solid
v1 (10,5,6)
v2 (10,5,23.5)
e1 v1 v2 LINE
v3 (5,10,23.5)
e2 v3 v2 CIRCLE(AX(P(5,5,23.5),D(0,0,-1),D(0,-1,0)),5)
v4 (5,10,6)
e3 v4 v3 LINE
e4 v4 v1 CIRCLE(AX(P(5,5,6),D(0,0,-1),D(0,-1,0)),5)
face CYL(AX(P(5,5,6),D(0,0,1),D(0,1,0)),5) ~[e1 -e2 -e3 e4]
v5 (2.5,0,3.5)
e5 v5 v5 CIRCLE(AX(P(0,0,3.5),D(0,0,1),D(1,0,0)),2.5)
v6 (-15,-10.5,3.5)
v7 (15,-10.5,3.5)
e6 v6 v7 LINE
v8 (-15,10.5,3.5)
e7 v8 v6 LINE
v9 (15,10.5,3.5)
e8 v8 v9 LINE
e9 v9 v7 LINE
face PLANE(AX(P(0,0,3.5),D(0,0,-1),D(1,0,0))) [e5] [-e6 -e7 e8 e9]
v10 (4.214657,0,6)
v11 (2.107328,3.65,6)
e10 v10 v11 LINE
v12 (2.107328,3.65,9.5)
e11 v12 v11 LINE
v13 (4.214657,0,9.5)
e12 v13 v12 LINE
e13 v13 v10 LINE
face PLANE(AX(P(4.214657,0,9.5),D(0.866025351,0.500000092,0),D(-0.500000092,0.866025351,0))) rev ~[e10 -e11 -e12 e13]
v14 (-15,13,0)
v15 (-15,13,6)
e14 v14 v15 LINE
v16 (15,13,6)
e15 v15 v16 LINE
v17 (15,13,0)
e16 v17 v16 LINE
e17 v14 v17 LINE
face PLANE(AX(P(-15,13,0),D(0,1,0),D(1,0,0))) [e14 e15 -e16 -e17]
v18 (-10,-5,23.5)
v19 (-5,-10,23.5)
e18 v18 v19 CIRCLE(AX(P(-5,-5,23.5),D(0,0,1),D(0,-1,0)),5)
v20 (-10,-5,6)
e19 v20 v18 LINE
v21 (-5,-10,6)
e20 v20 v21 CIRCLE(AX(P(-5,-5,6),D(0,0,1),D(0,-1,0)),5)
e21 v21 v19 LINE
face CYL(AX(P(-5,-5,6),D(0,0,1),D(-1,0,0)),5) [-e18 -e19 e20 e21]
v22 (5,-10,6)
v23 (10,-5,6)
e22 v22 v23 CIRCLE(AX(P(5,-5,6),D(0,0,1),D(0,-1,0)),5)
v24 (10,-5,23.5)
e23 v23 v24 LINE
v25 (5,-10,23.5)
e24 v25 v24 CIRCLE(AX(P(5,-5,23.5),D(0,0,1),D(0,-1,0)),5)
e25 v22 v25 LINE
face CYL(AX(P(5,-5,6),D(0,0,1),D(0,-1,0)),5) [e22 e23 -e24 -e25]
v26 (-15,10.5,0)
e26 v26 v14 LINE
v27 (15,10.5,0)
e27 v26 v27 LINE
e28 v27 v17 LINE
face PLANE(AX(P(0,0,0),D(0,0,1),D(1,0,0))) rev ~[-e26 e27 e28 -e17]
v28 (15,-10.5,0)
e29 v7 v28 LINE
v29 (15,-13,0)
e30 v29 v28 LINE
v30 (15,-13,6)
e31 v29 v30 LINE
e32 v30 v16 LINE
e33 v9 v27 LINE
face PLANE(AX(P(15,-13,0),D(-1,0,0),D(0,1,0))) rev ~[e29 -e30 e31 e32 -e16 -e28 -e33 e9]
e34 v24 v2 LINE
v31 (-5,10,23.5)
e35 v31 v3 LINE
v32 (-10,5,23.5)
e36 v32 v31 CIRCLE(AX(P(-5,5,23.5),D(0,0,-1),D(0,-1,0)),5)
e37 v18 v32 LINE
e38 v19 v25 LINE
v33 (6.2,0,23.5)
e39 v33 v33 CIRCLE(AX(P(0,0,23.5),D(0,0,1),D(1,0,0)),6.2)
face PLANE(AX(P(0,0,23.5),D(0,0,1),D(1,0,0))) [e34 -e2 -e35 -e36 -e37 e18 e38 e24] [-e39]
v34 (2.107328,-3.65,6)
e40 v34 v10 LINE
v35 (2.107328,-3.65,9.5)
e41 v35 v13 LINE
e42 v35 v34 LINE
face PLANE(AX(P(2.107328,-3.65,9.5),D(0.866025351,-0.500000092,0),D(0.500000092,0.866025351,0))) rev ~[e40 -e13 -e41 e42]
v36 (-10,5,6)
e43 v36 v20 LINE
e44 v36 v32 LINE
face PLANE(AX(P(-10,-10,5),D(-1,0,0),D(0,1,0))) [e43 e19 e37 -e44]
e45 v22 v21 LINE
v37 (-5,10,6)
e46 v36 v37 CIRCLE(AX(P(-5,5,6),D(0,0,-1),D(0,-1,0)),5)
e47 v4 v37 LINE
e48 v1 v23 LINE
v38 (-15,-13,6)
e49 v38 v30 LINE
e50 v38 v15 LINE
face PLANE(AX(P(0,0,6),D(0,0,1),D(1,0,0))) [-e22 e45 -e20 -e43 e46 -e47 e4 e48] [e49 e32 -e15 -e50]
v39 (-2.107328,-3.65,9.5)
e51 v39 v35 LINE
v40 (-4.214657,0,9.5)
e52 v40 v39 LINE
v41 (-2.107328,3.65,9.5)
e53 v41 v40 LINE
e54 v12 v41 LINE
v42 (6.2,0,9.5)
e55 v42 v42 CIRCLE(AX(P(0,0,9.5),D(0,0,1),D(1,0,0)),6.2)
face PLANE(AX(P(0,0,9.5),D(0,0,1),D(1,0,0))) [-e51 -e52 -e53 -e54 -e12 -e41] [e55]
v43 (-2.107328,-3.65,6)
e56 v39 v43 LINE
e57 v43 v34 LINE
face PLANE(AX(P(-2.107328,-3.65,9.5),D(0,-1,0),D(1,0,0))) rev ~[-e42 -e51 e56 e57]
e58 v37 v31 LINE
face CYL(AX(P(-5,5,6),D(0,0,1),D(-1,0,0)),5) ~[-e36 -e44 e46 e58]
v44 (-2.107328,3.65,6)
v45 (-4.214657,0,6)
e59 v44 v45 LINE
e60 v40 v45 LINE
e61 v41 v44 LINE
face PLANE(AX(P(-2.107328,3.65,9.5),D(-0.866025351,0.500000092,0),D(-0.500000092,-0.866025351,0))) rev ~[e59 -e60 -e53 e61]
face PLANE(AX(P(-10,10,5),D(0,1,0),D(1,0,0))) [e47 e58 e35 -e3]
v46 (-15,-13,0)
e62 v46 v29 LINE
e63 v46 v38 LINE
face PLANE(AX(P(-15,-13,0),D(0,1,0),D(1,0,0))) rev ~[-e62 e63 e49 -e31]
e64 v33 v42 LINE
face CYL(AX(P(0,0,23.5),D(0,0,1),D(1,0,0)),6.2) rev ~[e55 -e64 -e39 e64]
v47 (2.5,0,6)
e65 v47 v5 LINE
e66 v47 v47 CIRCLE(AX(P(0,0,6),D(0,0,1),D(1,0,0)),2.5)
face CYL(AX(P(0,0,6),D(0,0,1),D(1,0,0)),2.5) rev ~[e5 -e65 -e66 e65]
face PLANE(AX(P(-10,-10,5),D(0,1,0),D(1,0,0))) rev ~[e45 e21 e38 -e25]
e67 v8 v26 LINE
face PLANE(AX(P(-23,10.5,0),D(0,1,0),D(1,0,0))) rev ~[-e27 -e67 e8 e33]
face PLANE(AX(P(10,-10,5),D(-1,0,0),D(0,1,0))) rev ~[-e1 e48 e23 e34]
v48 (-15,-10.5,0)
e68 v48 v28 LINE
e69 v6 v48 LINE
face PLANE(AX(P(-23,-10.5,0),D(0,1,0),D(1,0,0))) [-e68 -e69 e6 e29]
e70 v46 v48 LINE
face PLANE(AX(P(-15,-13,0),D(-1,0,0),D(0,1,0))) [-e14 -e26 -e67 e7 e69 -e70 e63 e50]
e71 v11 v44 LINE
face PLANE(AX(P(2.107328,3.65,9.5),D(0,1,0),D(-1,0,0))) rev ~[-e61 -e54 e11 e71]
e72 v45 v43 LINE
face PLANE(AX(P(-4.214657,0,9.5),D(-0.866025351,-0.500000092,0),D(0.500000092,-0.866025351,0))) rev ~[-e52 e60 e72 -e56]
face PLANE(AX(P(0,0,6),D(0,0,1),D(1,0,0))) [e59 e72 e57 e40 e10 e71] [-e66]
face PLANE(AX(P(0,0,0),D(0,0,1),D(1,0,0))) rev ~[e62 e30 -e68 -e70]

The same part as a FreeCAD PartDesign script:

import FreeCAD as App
import Part
import Sketcher
Q = App.Units.Quantity


def edges_at(feature, points):
    """Names of the edges that pass closest to the given points."""
    edges = feature.Shape.Edges
    near = lambda p: min(range(len(edges)), key=lambda i: edges[i].distToShape(Part.Vertex(*p))[0])
    return sorted({f"Edge{near(p) + 1}" for p in points})


def add_polygon(sketch, points):
    """Adds a closed chain of lines whose ends are joined by coincident constraints."""
    first, n = sketch.GeometryCount, len(points)
    for a, b in zip(points, points[1:] + points[:1]):
        sketch.addGeometry(Part.LineSegment(App.Vector(*a, 0), App.Vector(*b, 0)), False)
    for i in range(n):
        sketch.addConstraint(Sketcher.Constraint("Coincident", first + i, 2, first + (i + 1) % n, 1))

doc = App.newDocument("Part")
body = doc.addObject("PartDesign::Body", "Body")

# Sketch on XY plane
sketch1 = body.newObject("Sketcher::SketchObject", "Sketch")
sketch1.AttachmentSupport = (doc.getObject("XY_Plane"), [""])
sketch1.MapMode = "FlatFace"
add_polygon(sketch1, [(-15, 13), (-15, -13), (15, -13), (15, 13)])  # lines 0-3
sketch1.addConstraint([
    Sketcher.Constraint("Vertical", 0),
    Sketcher.Constraint("Horizontal", 1),
    Sketcher.Constraint("Vertical", 2),
    Sketcher.Constraint("Horizontal", 3),
    Sketcher.Constraint("Symmetric", 0, 2, 2, 2, -1, 1),
    Sketcher.Constraint("DistanceX", 1, 1, 1, 2, 30.0),
    Sketcher.Constraint("DistanceY", 0, 2, 0, 1, 26.0),
])
pad1 = body.newObject("PartDesign::Pad", "Pad")
pad1.Profile = sketch1
pad1.Length = 6

# Sketch on XY plane
sketch2 = body.newObject("Sketcher::SketchObject", "Sketch001")
sketch2.AttachmentSupport = (doc.getObject("XY_Plane"), [""])
sketch2.MapMode = "FlatFace"
add_polygon(sketch2, [(-23, -10), (-23, 10), (23, 10), (23, -10)])  # lines 0-3
sketch2.addConstraint([
    Sketcher.Constraint("Vertical", 0),
    Sketcher.Constraint("Horizontal", 1),
    Sketcher.Constraint("Vertical", 2),
    Sketcher.Constraint("Horizontal", 3),
    Sketcher.Constraint("Symmetric", 0, 2, 2, 2, -1, 1),
    Sketcher.Constraint("DistanceX", 1, 1, 1, 2, 46.0),
    Sketcher.Constraint("DistanceY", 0, 1, 0, 2, 21.0),
])
pocket1 = body.newObject("PartDesign::Pocket", "Pocket")
pocket1.Profile = sketch2
pocket1.Length = 3.5
pocket1.Reversed = True

# Sketch on XY plane
sketch3 = body.newObject("Sketcher::SketchObject", "Sketch002")
sketch3.AttachmentSupport = (doc.getObject("XY_Plane"), [""])
sketch3.MapMode = "FlatFace"
sketch3.AttachmentOffset = App.Placement(App.Vector(0, 0, 5), App.Rotation())
add_polygon(sketch3, [(-10, 10), (-10, -10), (10, -10), (10, 10)])  # lines 0-3
sketch3.addConstraint([
    Sketcher.Constraint("Vertical", 0),
    Sketcher.Constraint("Horizontal", 1),
    Sketcher.Constraint("Vertical", 2),
    Sketcher.Constraint("Horizontal", 3),
    Sketcher.Constraint("Symmetric", 0, 2, 2, 2, -1, 1),
    Sketcher.Constraint("Equal", 3, 0),
    Sketcher.Constraint("DistanceX", 1, 1, 1, 2, 20.0),
])
pad2 = body.newObject("PartDesign::Pad", "Pad001")
pad2.Profile = sketch3
pad2.Length = 18.5

# Sketch on XY plane
sketch4 = body.newObject("Sketcher::SketchObject", "Sketch003")
sketch4.AttachmentSupport = (doc.getObject("XY_Plane"), [""])
sketch4.MapMode = "FlatFace"
sketch4.AttachmentOffset = App.Placement(App.Vector(0, 0, 23.5), App.Rotation())
sketch4.addGeometry(Part.Circle(App.Vector(0, 0, 0), App.Vector(0, 0, 1), 6), False)
sketch4.addConstraint([
    Sketcher.Constraint("Coincident", 0, 3, -1, 1),
    Sketcher.Constraint("Diameter", 0, 12.4),
])
pocket2 = body.newObject("PartDesign::Pocket", "Pocket001")
pocket2.Profile = sketch4
pocket2.Length = 14

# Sketch on XY plane
sketch5 = body.newObject("Sketcher::SketchObject", "Sketch004")
sketch5.AttachmentSupport = (doc.getObject("XY_Plane"), [""])
sketch5.MapMode = "FlatFace"
sketch5.AttachmentOffset = App.Placement(App.Vector(0, 0, 9.5), App.Rotation())
add_polygon(sketch5, [(2.1, -3.6), (4.2, 0), (2.1, 3.6), (-2.1, 3.6), (-4.2, 0), (-2.1, -3.6)])  # lines 0-5
sketch5.addConstraint([
    Sketcher.Constraint("Horizontal", 2),
    Sketcher.Constraint("Horizontal", 5),
    Sketcher.Constraint("Symmetric", 0, 2, 3, 2, -1, 1),
    Sketcher.Constraint("Symmetric", 1, 2, 4, 2, -1, 1),
    Sketcher.Constraint("PointOnObject", 0, 2, -1),
    Sketcher.Constraint("Parallel", 0, 3),
    Sketcher.Constraint("Vertical", 2, 2, 4, 2),
    Sketcher.Constraint("Angle", 0, Q("59.999994 deg")),
    Sketcher.Constraint("DistanceY", 4, 2, 2, 2, 7.3),
    Sketcher.Constraint("DistanceX", 2, 2, 2, 1, 4.214656),
])
pocket3 = body.newObject("PartDesign::Pocket", "Pocket002")
pocket3.Profile = sketch5
pocket3.Length = 3.5

# Sketch on XY plane
sketch6 = body.newObject("Sketcher::SketchObject", "Sketch005")
sketch6.AttachmentSupport = (doc.getObject("XY_Plane"), [""])
sketch6.MapMode = "FlatFace"
sketch6.AttachmentOffset = App.Placement(App.Vector(0, 0, 6), App.Rotation())
sketch6.addGeometry(Part.Circle(App.Vector(0, 0, 0), App.Vector(0, 0, 1), 2.5), False)
sketch6.addConstraint([
    Sketcher.Constraint("Coincident", 0, 3, -1, 1),
    Sketcher.Constraint("Diameter", 0, 5.0),
])
pocket4 = body.newObject("PartDesign::Pocket", "Pocket003")
pocket4.Profile = sketch6
pocket4.Type = "ThroughAll"
doc.recompute()

fillet = body.newObject("PartDesign::Fillet", "Fillet")
fillet.Base = (pocket4, edges_at(pocket4, [
    (-10, 10, 14.75),
    (10, 10, 14.75),
    (10, -10, 14.75),
    (-10, -10, 14.75),
]))
fillet.Radius = 5

doc.recompute()
